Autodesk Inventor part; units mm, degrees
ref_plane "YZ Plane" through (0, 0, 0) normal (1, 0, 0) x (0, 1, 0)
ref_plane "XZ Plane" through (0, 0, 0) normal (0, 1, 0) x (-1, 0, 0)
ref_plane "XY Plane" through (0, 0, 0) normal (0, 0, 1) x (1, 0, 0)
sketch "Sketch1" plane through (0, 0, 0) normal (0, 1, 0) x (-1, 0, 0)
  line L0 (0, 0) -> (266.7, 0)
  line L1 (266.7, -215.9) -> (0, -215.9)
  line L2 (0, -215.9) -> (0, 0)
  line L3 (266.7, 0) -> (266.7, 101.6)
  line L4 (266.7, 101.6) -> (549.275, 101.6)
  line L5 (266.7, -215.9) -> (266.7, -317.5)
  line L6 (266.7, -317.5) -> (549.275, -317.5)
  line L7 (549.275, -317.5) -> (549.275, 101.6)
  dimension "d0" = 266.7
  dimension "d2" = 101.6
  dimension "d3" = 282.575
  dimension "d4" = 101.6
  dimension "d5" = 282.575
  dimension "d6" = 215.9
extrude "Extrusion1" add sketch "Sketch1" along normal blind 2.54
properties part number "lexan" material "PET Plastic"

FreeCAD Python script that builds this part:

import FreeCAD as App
import Part
import Sketcher

V = App.Vector
Q = App.Units.Quantity


def add_polygon(sketch, points):
    """Adds a closed chain of lines whose ends are joined by coincident constraints."""
    first, n = sketch.GeometryCount, len(points)
    for a, b in zip(points, points[1:] + points[:1]):
        sketch.addGeometry(Part.LineSegment(App.Vector(*a, 0), App.Vector(*b, 0)), False)
    for i in range(n):
        sketch.addConstraint(Sketcher.Constraint("Coincident", first + i, 2, first + (i + 1) % n, 1))

doc = App.newDocument("Part")
params = doc.addObject("Spreadsheet::Sheet", "Params")
for row, (alias, value) in enumerate([
    ("sketch1_height", "4 in"),
    ("sketch1_width", "10.5 in"),
    ("sketch1_height2", "8.5 in"),
    ("sketch1_width2", "11.125 in"),
    ("pad1_length", "0.1 in"),
], start=1):
    params.set(f"A{row}", alias)
    params.set(f"B{row}", "=" + value)
    params.setAlias(f"B{row}", alias)

body = doc.addObject("PartDesign::Body", "Body")

# Sketch on XZ plane
sketch1 = body.newObject("Sketcher::SketchObject", "Sketch")
sketch1.AttachmentSupport = (doc.getObject("XZ_Plane"), [""])
sketch1.MapMode = "FlatFace"
add_polygon(sketch1, [(-267, 0), (0, 0), (0, -216), (-267, -216), (-267, -318), (-549, -318), (-549, 102), (-267, 102)])  # lines 0-7
sketch1.addConstraint(Sketcher.Constraint("Horizontal", 0))
sketch1.addConstraint(Sketcher.Constraint("Vertical", 1))
sketch1.addConstraint(Sketcher.Constraint("Horizontal", 2))
sketch1.addConstraint(Sketcher.Constraint("Vertical", 3))
sketch1.addConstraint(Sketcher.Constraint("Horizontal", 4))
sketch1.addConstraint(Sketcher.Constraint("Vertical", 5))
sketch1.addConstraint(Sketcher.Constraint("Horizontal", 6))
sketch1.addConstraint(Sketcher.Constraint("Vertical", 7))
sketch1.addConstraint(Sketcher.Constraint("Coincident", 0, 2, -1, 1))
sketch1.addConstraint(Sketcher.Constraint("Vertical", 3, 2, 6, 2))
sketch1.addConstraint(Sketcher.Constraint("Equal", 3, 7))
sketch1.addConstraint(Sketcher.Constraint("DistanceY", 3, 2, 3, 1, Q("4 in")))
sketch1.addConstraint(Sketcher.Constraint("DistanceX", 0, 1, 0, 2, Q("10.5 in")))
sketch1.addConstraint(Sketcher.Constraint("DistanceY", 1, 2, 1, 1, Q("8.5 in")))
sketch1.addConstraint(Sketcher.Constraint("DistanceX", 4, 2, 4, 1, Q("11.125 in")))
sketch1.setExpression("Constraints[19]", "Params.sketch1_height")
sketch1.setExpression("Constraints[20]", "Params.sketch1_width")
sketch1.setExpression("Constraints[21]", "Params.sketch1_height2")
sketch1.setExpression("Constraints[22]", "Params.sketch1_width2")
pad1 = body.newObject("PartDesign::Pad", "Pad")
pad1.Profile = sketch1
pad1.setExpression("Length", "Params.pad1_length")
pad1.Reversed = True

doc.recompute()
